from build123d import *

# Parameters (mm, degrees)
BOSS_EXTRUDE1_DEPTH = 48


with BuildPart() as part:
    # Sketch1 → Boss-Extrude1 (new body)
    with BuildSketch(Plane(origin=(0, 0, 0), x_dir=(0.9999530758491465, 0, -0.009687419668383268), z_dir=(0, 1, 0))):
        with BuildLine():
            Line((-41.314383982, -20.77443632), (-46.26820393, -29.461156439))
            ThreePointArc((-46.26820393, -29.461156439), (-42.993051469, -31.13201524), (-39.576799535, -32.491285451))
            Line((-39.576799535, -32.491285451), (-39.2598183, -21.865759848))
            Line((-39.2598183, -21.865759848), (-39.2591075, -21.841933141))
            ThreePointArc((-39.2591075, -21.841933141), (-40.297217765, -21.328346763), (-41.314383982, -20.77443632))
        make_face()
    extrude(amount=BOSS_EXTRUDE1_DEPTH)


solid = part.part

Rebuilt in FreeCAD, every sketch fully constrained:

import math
import FreeCAD as App
import Part
import Sketcher

V = App.Vector
Q = App.Units.Quantity

doc = App.newDocument("Part")
body = doc.addObject("PartDesign::Body", "Body")

sketch1 = body.newObject("Sketcher::SketchObject", "Sketch")
sketch1.AttachmentSupport = (doc.getObject("XZ_Plane"), [""])
sketch1.MapMode = "FlatFace"
sketch1.addGeometry(Part.LineSegment(V(-41.111195, 21.173691, 0), V(-45.98063, 29.907994, 0)), False)
sketch1.addGeometry(Part.ArcOfCircle(Part.Circle(V(-26.735607, -4.611788, 0), V(0, 0, 1), 39.521972), math.radians(108.475655), math.radians(119.139977)), False)
sketch1.addGeometry(Part.LineSegment(V(-39.260186, 32.873158, 0), V(-39.046153, 22.24506, 0)), False)
sketch1.addGeometry(Part.LineSegment(V(-39.046153, 22.24506, 0), V(-39.045673, 22.221228, 0)), False)
sketch1.addGeometry(Part.ArcOfCircle(Part.Circle(V(-26.735606, -4.611789, 0), V(0, 0, 1), 29.522), math.radians(114.644033), math.radians(119.139977)), False)
sketch1.addConstraint(Sketcher.Constraint("Coincident", 0, 2, 1, 2))
sketch1.addConstraint(Sketcher.Constraint("Coincident", 1, 1, 2, 1))
sketch1.addConstraint(Sketcher.Constraint("Coincident", 2, 2, 3, 1))
sketch1.addConstraint(Sketcher.Constraint("Coincident", 3, 2, 4, 1))
sketch1.addConstraint(Sketcher.Constraint("Coincident", 4, 2, 0, 1))
sketch1.addConstraint(Sketcher.Constraint("Coincident", 4, 3, 1, 3))
sketch1.addConstraint(Sketcher.Constraint("Parallel", 2, 3))
sketch1.addConstraint(Sketcher.Constraint("Radius", 4, Q("29.522 mm")))
sketch1.addConstraint(Sketcher.Constraint("Radius", 1, Q("39.521972 mm")))
sketch1.addConstraint(Sketcher.Constraint("DistanceY", 1, 3, -1, 1, Q("4.611788 mm")))
sketch1.addConstraint(Sketcher.Constraint("DistanceX", 0, 2, -1, 1, Q("45.98063 mm")))
sketch1.addConstraint(Sketcher.Constraint("DistanceY", -1, 1, 2, 2, Q("22.24506 mm")))
sketch1.addConstraint(Sketcher.Constraint("DistanceY", -1, 1, 4, 2, Q("21.173691 mm")))
sketch1.addConstraint(Sketcher.Constraint("DistanceY", 1, 3, 0, 2, Q("34.519782 mm")))
sketch1.addConstraint(Sketcher.Constraint("DistanceX", 1, 1, 1, 3, Q("12.524579 mm")))
sketch1.addConstraint(Sketcher.Constraint("DistanceX", 2, 2, 3, 2, Q("0.00048 mm")))
pad1 = body.newObject("PartDesign::Pad", "Pad")
pad1.Profile = sketch1
pad1.Length = 48
pad1.Reversed = True

doc.recompute()
